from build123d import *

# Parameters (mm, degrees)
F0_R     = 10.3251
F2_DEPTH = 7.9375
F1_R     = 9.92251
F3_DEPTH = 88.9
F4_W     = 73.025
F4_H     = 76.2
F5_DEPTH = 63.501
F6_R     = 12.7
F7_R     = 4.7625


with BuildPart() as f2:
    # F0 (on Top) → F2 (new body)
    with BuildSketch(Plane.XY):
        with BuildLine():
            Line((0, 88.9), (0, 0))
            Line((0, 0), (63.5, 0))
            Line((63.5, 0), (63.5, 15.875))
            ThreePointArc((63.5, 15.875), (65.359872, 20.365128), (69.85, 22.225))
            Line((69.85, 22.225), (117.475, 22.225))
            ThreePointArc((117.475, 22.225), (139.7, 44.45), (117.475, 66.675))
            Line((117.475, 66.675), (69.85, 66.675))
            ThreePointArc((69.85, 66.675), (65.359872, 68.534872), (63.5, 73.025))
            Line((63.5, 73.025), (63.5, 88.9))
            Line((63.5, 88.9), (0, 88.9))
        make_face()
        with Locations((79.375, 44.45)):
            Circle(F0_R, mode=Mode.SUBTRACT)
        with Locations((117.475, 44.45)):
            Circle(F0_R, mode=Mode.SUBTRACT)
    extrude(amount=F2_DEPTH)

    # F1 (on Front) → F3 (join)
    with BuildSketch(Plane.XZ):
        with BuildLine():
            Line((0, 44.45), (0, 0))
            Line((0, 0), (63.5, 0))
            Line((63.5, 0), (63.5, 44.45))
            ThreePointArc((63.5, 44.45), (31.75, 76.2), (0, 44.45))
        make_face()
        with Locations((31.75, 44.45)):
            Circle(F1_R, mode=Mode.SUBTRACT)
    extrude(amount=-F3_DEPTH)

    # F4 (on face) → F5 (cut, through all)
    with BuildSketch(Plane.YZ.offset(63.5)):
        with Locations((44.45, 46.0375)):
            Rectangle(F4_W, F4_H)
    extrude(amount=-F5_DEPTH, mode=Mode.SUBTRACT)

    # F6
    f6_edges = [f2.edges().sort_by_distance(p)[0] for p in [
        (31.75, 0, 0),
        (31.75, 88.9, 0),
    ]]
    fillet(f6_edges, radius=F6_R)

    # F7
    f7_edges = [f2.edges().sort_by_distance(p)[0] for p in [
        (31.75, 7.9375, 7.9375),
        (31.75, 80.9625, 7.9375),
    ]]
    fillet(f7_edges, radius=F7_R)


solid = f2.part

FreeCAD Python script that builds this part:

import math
import FreeCAD as App
import Part
import Sketcher
Q = App.Units.Quantity


def edges_at(feature, points):
    """Names of the edges that pass closest to the given points."""
    edges = feature.Shape.Edges
    near = lambda p: min(range(len(edges)), key=lambda i: edges[i].distToShape(Part.Vertex(*p))[0])
    return sorted({f"Edge{near(p) + 1}" for p in points})

doc = App.newDocument("Part")
body = doc.addObject("PartDesign::Body", "Body")

# Sketch on XY plane
sketch1 = body.newObject("Sketcher::SketchObject", "Sketch")
sketch1.AttachmentSupport = (doc.getObject("XY_Plane"), [""])
sketch1.MapMode = "FlatFace"
sketch1.addGeometry([
    Part.LineSegment(App.Vector(0, 89, 0), App.Vector(0, 0, 0)),  # 0
    Part.LineSegment(App.Vector(0, 0, 0), App.Vector(64, 0, 0)),  # 1
    Part.LineSegment(App.Vector(64, 0, 0), App.Vector(64, 16, 0)),  # 2
    Part.ArcOfCircle(Part.Circle(App.Vector(70, 16, 0), App.Vector(0, 0, 1), 6), math.radians(90), math.radians(180)),  # 3
    Part.LineSegment(App.Vector(70, 22, 0), App.Vector(117, 22, 0)),  # 4
    Part.ArcOfCircle(Part.Circle(App.Vector(117, 44, 0), App.Vector(0, 0, 1), 22), math.radians(-90), math.radians(90)),  # 5
    Part.LineSegment(App.Vector(117, 67, 0), App.Vector(70, 67, 0)),  # 6
    Part.ArcOfCircle(Part.Circle(App.Vector(70, 73, 0), App.Vector(0, 0, 1), 6), math.radians(-180), math.radians(-90)),  # 7
    Part.LineSegment(App.Vector(64, 73, 0), App.Vector(64, 89, 0)),  # 8
    Part.LineSegment(App.Vector(64, 89, 0), App.Vector(0, 89, 0)),  # 9
    Part.Circle(App.Vector(79, 44, 0), App.Vector(0, 0, 1), 10),  # 10
    Part.Circle(App.Vector(117, 44, 0), App.Vector(0, 0, 1), 10),  # 11
], False)
sketch1.addConstraint([
    Sketcher.Constraint("Coincident", 0, 2, 1, 1),
    Sketcher.Constraint("Coincident", 1, 2, 2, 1),
    Sketcher.Constraint("Tangent", 2, 2, 3, 2),
    Sketcher.Constraint("Tangent", 3, 1, 4, 1),
    Sketcher.Constraint("Tangent", 4, 2, 5, 1),
    Sketcher.Constraint("Tangent", 5, 2, 6, 1),
    Sketcher.Constraint("Tangent", 6, 2, 7, 2),
    Sketcher.Constraint("Tangent", 7, 1, 8, 1),
    Sketcher.Constraint("Coincident", 8, 2, 9, 1),
    Sketcher.Constraint("Coincident", 9, 2, 0, 1),
    Sketcher.Constraint("Vertical", 0),
    Sketcher.Constraint("Horizontal", 1),
    Sketcher.Constraint("Vertical", 2),
    Sketcher.Constraint("Horizontal", 4),
    Sketcher.Constraint("Horizontal", 6),
    Sketcher.Constraint("Vertical", 8),
    Sketcher.Constraint("Horizontal", 9),
    Sketcher.Constraint("Coincident", 0, 2, -1, 1),
    Sketcher.Constraint("Coincident", 11, 3, 5, 3),
    Sketcher.Constraint("Equal", 3, 7),
    Sketcher.Constraint("Equal", 10, 11),
    Sketcher.Constraint("Horizontal", 5, 3, 10, 3),
    Sketcher.Constraint("Vertical", 3, 3, 7, 3),
    Sketcher.Constraint("Equal", 2, 8),
    Sketcher.Constraint("Radius", 3, Q("0.25 in")),
    Sketcher.Constraint("Diameter", 10, Q("0.813 in")),
    Sketcher.Constraint("DistanceX", 1, 1, 1, 2, Q("2.5 in")),
    Sketcher.Constraint("DistanceY", 0, 2, 0, 1, Q("3.5 in")),
    Sketcher.Constraint("Radius", 5, Q("0.875 in")),
    Sketcher.Constraint("DistanceX", 10, 3, 5, 3, Q("1.5 in")),
    Sketcher.Constraint("DistanceX", 4, 1, 4, 2, Q("1.875 in")),
])
pad1 = body.newObject("PartDesign::Pad", "Pad")
pad1.Profile = sketch1
pad1.Length = Q("0.3125 in")

# Sketch on XZ plane
sketch2 = body.newObject("Sketcher::SketchObject", "Sketch001")
sketch2.AttachmentSupport = (doc.getObject("XZ_Plane"), [""])
sketch2.MapMode = "FlatFace"
sketch2.addGeometry([
    Part.LineSegment(App.Vector(0, 44, 0), App.Vector(0, 0, 0)),  # 0
    Part.LineSegment(App.Vector(0, 0, 0), App.Vector(64, 0, 0)),  # 1
    Part.LineSegment(App.Vector(64, 0, 0), App.Vector(64, 44, 0)),  # 2
    Part.ArcOfCircle(Part.Circle(App.Vector(32, 44, 0), App.Vector(0, 0, 1), 32), math.radians(0), math.radians(180)),  # 3
    Part.Circle(App.Vector(32, 44, 0), App.Vector(0, 0, 1), 10),  # 4
], False)
sketch2.addConstraint([
    Sketcher.Constraint("Coincident", 0, 2, 1, 1),
    Sketcher.Constraint("Coincident", 1, 2, 2, 1),
    Sketcher.Constraint("Tangent", 2, 2, 3, 1),
    Sketcher.Constraint("Tangent", 3, 2, 0, 1),
    Sketcher.Constraint("Vertical", 0),
    Sketcher.Constraint("Horizontal", 1),
    Sketcher.Constraint("Vertical", 2),
    Sketcher.Constraint("Coincident", 0, 2, -1, 1),
    Sketcher.Constraint("Coincident", 4, 3, 3, 3),
    Sketcher.Constraint("Radius", 3, Q("1.25 in")),
    Sketcher.Constraint("Diameter", 4, Q("0.7813 in")),
    Sketcher.Constraint("DistanceY", 0, 2, 0, 1, Q("1.75 in")),
])
pad2 = body.newObject("PartDesign::Pad", "Pad001")
pad2.Profile = sketch2
pad2.Length = Q("3.5 in")
pad2.Reversed = True

# Sketch on YZ plane
sketch3 = body.newObject("Sketcher::SketchObject", "Sketch002")
sketch3.AttachmentSupport = (doc.getObject("YZ_Plane"), [""])
sketch3.MapMode = "FlatFace"
sketch3.AttachmentOffset = App.Placement(App.Vector(0, 0, 2.5 * 25.4), App.Rotation())
sketch3.addGeometry([
    Part.LineSegment(App.Vector(8, 84, 0), App.Vector(8, 8, 0)),
    Part.LineSegment(App.Vector(8, 8, 0), App.Vector(81, 8, 0)),
    Part.LineSegment(App.Vector(81, 8, 0), App.Vector(81, 84, 0)),
    Part.LineSegment(App.Vector(81, 84, 0), App.Vector(8, 84, 0)),
], False)
sketch3.addConstraint([
    Sketcher.Constraint("Coincident", 0, 2, 1, 1),
    Sketcher.Constraint("Coincident", 1, 2, 2, 1),
    Sketcher.Constraint("Coincident", 2, 2, 3, 1),
    Sketcher.Constraint("Coincident", 3, 2, 0, 1),
    Sketcher.Constraint("Vertical", 0),
    Sketcher.Constraint("Horizontal", 1),
    Sketcher.Constraint("Vertical", 2),
    Sketcher.Constraint("Horizontal", 3),
    Sketcher.Constraint("DistanceY", 0, 2, 0, 1, Q("3 in")),
    Sketcher.Constraint("DistanceX", 1, 1, 1, 2, Q("2.875 in")),
    Sketcher.Constraint("DistanceX", -1, 1, 0, 2, Q("0.3125 in")),
    Sketcher.Constraint("DistanceY", -1, 1, 0, 2, Q("0.3125 in")),
])
pocket1 = body.newObject("PartDesign::Pocket", "Pocket")
pocket1.Profile = sketch3
pocket1.Type = "ThroughAll"
doc.recompute()

fillet = body.newObject("PartDesign::Fillet", "Fillet")
fillet.Base = (pocket1, edges_at(pocket1, [(31.75, 0, 0), (31.75, 88.9, 0)]))
fillet.Radius = Q("0.5 in")
doc.recompute()

fillet2 = body.newObject("PartDesign::Fillet", "Fillet001")
fillet2.Base = (fillet, edges_at(fillet, [(31.75, 7.938, 7.938), (31.75, 80.963, 7.938)]))
fillet2.Radius = Q("0.1875 in")

doc.recompute()
